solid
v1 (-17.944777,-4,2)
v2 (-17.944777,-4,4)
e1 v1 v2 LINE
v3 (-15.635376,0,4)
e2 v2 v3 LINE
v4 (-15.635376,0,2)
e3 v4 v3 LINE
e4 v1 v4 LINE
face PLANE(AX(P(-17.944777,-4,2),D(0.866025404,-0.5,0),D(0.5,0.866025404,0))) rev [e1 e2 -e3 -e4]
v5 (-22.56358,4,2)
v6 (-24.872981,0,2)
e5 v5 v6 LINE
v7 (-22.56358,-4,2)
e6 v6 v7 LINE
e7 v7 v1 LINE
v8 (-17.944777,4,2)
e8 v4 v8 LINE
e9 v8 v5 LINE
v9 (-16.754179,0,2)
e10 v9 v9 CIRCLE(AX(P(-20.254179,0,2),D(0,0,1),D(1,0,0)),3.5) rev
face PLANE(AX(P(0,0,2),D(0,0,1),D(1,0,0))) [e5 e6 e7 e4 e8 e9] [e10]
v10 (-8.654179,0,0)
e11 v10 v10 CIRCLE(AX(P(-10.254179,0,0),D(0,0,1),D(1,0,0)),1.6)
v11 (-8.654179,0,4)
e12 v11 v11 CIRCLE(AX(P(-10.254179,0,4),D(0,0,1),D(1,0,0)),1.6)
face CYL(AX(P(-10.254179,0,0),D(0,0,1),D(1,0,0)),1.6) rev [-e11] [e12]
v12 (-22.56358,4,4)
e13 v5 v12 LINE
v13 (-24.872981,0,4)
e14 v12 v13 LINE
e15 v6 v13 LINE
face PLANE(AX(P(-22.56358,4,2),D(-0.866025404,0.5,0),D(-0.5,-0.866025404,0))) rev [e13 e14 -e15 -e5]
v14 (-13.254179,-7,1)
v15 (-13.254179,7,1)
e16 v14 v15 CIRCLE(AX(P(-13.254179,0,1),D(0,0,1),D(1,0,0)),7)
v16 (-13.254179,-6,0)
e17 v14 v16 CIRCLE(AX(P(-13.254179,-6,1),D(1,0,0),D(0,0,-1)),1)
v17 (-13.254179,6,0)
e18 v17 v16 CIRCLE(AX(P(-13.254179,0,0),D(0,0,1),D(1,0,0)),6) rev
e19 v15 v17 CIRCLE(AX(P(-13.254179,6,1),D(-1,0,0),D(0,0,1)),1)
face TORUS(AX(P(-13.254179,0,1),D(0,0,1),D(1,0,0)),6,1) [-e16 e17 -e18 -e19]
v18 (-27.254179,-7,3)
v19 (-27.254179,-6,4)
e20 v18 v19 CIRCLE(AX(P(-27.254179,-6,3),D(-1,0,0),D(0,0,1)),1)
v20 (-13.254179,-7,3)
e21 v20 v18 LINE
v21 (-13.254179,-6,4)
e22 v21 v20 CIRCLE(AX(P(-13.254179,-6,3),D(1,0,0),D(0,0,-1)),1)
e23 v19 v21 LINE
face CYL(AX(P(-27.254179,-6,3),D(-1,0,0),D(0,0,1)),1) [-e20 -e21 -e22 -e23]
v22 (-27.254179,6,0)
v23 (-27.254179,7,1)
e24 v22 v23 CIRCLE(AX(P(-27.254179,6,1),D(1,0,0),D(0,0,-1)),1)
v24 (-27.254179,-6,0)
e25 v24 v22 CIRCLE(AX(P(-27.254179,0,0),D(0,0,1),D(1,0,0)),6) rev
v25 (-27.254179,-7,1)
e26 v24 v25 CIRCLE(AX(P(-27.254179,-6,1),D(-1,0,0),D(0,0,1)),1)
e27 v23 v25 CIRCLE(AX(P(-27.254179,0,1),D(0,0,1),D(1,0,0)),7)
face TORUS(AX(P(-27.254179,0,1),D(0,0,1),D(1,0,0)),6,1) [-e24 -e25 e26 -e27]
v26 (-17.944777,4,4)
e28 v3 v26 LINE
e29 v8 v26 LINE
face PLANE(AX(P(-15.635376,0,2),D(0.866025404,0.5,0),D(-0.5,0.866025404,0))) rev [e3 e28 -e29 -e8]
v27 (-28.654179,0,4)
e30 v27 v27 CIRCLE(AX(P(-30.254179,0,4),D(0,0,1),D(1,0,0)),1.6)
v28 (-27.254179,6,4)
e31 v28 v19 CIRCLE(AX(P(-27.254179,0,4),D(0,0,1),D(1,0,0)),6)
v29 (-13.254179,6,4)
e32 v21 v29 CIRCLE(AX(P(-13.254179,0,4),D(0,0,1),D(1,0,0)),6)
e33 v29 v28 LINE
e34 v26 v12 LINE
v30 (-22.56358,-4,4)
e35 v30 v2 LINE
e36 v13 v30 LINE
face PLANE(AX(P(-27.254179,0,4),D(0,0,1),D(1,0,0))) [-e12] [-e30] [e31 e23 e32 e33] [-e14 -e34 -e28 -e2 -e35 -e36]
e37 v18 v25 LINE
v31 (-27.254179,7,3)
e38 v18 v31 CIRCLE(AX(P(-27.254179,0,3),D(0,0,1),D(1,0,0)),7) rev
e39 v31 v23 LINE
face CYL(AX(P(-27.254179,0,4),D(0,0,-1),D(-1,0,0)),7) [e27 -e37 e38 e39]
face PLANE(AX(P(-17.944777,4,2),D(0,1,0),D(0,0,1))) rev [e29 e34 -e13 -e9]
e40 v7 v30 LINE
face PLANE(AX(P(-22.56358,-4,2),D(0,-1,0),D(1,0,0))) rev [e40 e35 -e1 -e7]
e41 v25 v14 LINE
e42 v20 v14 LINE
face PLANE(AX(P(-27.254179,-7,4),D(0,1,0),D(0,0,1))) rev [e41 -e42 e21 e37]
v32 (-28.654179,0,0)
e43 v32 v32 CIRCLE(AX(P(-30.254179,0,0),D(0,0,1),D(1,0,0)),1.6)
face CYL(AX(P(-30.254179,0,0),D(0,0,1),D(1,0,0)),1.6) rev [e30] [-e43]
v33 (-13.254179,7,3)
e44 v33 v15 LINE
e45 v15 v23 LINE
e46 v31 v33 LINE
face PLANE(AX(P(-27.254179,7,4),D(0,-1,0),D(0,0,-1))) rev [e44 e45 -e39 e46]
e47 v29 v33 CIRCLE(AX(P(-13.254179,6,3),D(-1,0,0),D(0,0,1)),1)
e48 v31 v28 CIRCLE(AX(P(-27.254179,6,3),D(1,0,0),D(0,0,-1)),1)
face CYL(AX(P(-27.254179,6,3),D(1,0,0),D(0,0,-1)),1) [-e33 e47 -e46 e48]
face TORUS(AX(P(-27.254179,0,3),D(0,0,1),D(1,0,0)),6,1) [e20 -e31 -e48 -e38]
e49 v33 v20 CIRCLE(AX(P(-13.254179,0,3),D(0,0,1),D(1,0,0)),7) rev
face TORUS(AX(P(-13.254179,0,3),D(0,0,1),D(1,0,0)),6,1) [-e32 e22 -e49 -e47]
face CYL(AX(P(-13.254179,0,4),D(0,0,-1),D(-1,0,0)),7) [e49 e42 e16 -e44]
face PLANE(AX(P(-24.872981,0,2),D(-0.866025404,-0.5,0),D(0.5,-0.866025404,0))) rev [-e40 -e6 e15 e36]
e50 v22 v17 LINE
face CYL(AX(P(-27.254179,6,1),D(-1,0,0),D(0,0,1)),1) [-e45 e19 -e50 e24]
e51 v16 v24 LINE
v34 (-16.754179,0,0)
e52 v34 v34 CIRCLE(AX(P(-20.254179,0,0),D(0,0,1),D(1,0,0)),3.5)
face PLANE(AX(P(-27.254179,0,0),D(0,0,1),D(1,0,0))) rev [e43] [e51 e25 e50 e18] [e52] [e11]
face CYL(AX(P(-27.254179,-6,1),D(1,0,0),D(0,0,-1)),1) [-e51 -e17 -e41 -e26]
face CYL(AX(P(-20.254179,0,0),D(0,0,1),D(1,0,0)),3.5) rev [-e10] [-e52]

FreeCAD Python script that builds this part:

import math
import FreeCAD as App
import Part
import Sketcher
Q = App.Units.Quantity


def edges_at(feature, points):
    """Names of the edges that pass closest to the given points."""
    edges = feature.Shape.Edges
    near = lambda p: min(range(len(edges)), key=lambda i: edges[i].distToShape(Part.Vertex(*p))[0])
    return sorted({f"Edge{near(p) + 1}" for p in points})


def add_polygon(sketch, points):
    """Adds a closed chain of lines whose ends are joined by coincident constraints."""
    first, n = sketch.GeometryCount, len(points)
    for a, b in zip(points, points[1:] + points[:1]):
        sketch.addGeometry(Part.LineSegment(App.Vector(*a, 0), App.Vector(*b, 0)), False)
    for i in range(n):
        sketch.addConstraint(Sketcher.Constraint("Coincident", first + i, 2, first + (i + 1) % n, 1))

doc = App.newDocument("Part")
body = doc.addObject("PartDesign::Body", "Body")

sketch1 = doc.addObject("Sketcher::SketchObject", "Sketch")
body.addObject(sketch1)
sketch1.AttachmentSupport = (doc.XY_Plane, [""])
sketch1.MapMode = "FlatFace"
sketch1.addGeometry([
    Part.LineSegment(App.Vector(-13.254179, 7, 0), App.Vector(-27.254179, 7, 0)),
    Part.ArcOfCircle(Part.Circle(App.Vector(-27.254179, 0, 0), App.Vector(0, 0, 1), 7), math.radians(90), math.radians(270)),
    Part.LineSegment(App.Vector(-27.254179, -7, 0), App.Vector(-13.254179, -7, 0)),
    Part.ArcOfCircle(Part.Circle(App.Vector(-13.254179, 0, 0), App.Vector(0, 0, 1), 7), math.radians(-90), math.radians(90)),
], False)
sketch1.addConstraint([
    Sketcher.Constraint("Tangent", 0, 2, 1, 1),
    Sketcher.Constraint("Tangent", 1, 2, 2, 1),
    Sketcher.Constraint("Tangent", 2, 2, 3, 1),
    Sketcher.Constraint("Tangent", 3, 2, 0, 1),
    Sketcher.Constraint("Horizontal", 0),
    Sketcher.Constraint("Horizontal", 2),
    Sketcher.Constraint("PointOnObject", 1, 3, -1),
    Sketcher.Constraint("Radius", 1, Q("7 mm")),
    Sketcher.Constraint("DistanceX", 0, 2, 0, 1, Q("14 mm")),
    Sketcher.Constraint("DistanceX", 1, 3, -1, 1, Q("27.254179 mm")),
])
pad1 = doc.addObject("PartDesign::Pad", "Pad")
body.addObject(pad1)
pad1.Profile = sketch1
pad1.Length = 4

sketch2 = doc.addObject("Sketcher::SketchObject", "Sketch001")
body.addObject(sketch2)
sketch2.AttachmentSupport = (doc.XY_Plane, [""])
sketch2.MapMode = "FlatFace"
sketch2.AttachmentOffset = App.Placement(App.Vector(0, 0, 4), App.Rotation())
sketch2.addGeometry([
    Part.Circle(App.Vector(-20.254179, 0, 0), App.Vector(0, 0, 1), 3.5),
    Part.Circle(App.Vector(-30.254179, 0, 0), App.Vector(0, 0, 1), 1.6),
    Part.Circle(App.Vector(-10.254179, 0, 0), App.Vector(0, 0, 1), 1.6),
], False)
sketch2.addConstraint([
    Sketcher.Constraint("Equal", 1, 2),
    Sketcher.Constraint("PointOnObject", 0, 3, -1),
    Sketcher.Constraint("PointOnObject", 1, 3, -1),
    Sketcher.Constraint("PointOnObject", 2, 3, -1),
    Sketcher.Constraint("Diameter", 0, Q("7 mm")),
    Sketcher.Constraint("Diameter", 1, Q("3.2 mm")),
    Sketcher.Constraint("DistanceX", 1, 3, 0, 3, Q("10 mm")),
    Sketcher.Constraint("DistanceX", 0, 3, 2, 3, Q("10 mm")),
    Sketcher.Constraint("DistanceX", 0, 3, -1, 1, Q("20.254179 mm")),
])
pocket1 = doc.addObject("PartDesign::Pocket", "Pocket")
body.addObject(pocket1)
pocket1.Profile = sketch2
pocket1.Type = "ThroughAll"

sketch3 = doc.addObject("Sketcher::SketchObject", "Sketch002")
body.addObject(sketch3)
sketch3.AttachmentSupport = (doc.XY_Plane, [""])
sketch3.MapMode = "FlatFace"
sketch3.AttachmentOffset = App.Placement(App.Vector(0, 0, 4), App.Rotation())
add_polygon(sketch3, [(-22.56358, 4), (-24.872981, 0), (-22.56358, -4), (-17.944777, -4), (-15.635376, 0), (-17.944777, 4)])
sketch3.addConstraint([
    Sketcher.Constraint("Horizontal", 2),
    Sketcher.Constraint("Horizontal", 5),
    Sketcher.Constraint("Symmetric", 2, 2, 4, 2, -1),
    Sketcher.Constraint("PointOnObject", 0, 2, -1),
    Sketcher.Constraint("PointOnObject", 3, 2, -1),
    Sketcher.Constraint("Parallel", 0, 3),
    Sketcher.Constraint("Parallel", 1, 4),
    Sketcher.Constraint("Angle", 0, Q("-120 deg")),
    Sketcher.Constraint("DistanceY", 1, 2, -1, 1, Q("4 mm")),
    Sketcher.Constraint("DistanceX", 2, 1, 2, 2, Q("4.618802 mm")),
    Sketcher.Constraint("DistanceX", 0, 2, -1, 1, Q("24.872981 mm")),
])
pocket2 = doc.addObject("PartDesign::Pocket", "Pocket001")
body.addObject(pocket2)
pocket2.Profile = sketch3
pocket2.Length = 2
doc.recompute()

fillet = doc.addObject("PartDesign::Fillet", "Fillet")
body.addObject(fillet)
fillet.Base = (pocket2, edges_at(pocket2, [
    (-6.254, 0, 4),
    (-20.254, 7, 4),
    (-34.254, 0, 4),
    (-20.254, 7, 0),
    (-6.254, 0, 0),
    (-20.254, -7, 0),
    (-34.254, 0, 0),
    (-20.254, -7, 4),
]))
fillet.Radius = 1

doc.recompute()
